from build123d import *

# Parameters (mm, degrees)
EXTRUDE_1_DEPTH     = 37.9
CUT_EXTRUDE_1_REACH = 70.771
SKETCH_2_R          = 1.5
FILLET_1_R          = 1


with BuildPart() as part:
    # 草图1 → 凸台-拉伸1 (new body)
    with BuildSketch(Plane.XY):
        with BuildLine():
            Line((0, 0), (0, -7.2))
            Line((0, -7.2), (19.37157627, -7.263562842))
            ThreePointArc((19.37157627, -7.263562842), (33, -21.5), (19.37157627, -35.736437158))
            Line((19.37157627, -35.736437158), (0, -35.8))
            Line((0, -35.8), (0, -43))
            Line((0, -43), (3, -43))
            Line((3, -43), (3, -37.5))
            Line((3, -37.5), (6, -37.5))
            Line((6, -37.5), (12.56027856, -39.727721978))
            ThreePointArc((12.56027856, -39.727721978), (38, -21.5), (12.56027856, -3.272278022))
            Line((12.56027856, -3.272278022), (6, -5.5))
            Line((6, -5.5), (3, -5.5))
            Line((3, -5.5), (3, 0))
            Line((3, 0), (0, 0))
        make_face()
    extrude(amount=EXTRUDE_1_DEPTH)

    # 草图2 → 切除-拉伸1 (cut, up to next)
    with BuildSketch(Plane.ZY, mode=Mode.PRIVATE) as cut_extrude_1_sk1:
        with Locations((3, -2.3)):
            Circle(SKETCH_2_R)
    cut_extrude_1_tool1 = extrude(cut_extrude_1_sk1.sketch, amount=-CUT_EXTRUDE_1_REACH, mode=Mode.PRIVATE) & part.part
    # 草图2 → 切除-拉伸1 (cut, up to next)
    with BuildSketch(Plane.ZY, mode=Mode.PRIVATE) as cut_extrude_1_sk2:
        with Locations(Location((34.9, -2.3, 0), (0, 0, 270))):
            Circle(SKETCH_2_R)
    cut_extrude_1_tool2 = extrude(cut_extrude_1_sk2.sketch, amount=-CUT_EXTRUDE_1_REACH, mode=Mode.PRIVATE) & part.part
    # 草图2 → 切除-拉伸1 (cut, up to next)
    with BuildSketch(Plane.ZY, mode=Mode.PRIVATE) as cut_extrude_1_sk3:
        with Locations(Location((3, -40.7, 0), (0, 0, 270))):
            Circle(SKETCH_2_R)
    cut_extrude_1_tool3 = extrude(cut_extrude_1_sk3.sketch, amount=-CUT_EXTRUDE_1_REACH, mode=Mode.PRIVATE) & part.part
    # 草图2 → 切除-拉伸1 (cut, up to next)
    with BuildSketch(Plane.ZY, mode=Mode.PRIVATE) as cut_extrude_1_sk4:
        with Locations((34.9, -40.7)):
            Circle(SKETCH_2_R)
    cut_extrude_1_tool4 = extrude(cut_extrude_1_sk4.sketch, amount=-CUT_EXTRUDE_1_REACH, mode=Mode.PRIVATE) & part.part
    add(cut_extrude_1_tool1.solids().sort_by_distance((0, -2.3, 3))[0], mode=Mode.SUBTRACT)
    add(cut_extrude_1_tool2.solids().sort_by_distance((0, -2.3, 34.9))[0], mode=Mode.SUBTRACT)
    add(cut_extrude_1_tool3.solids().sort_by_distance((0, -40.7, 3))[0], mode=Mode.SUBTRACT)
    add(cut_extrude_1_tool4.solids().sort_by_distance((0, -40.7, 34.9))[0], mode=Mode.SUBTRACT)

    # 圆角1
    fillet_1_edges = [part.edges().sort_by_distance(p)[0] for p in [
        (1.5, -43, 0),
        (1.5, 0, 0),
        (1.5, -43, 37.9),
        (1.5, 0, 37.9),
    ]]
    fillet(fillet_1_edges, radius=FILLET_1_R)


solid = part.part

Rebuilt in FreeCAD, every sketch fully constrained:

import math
import FreeCAD as App
import Part
import Sketcher

V = App.Vector


def edges_at(feature, points):
    """Names of the edges that pass closest to the given points."""
    edges = feature.Shape.Edges
    near = lambda p: min(range(len(edges)), key=lambda i: edges[i].distToShape(Part.Vertex(*p))[0])
    return sorted({f"Edge{near(p) + 1}" for p in points})

doc = App.newDocument("Part")
params = doc.addObject("Spreadsheet::Sheet", "Params")
for row, (alias, value) in enumerate([
    ("sketch1_width", "3 mm"),
    ("sketch1_radius", "14.25 mm"),
    ("sketch1_radius2", "19.25 mm"),
    ("sketch1_height", "7.2 mm"),
    ("sketch1_height2", "5.5 mm"),
    ("pad1_length", "37.9 mm"),
    ("sketch2_diameter", "3 mm"),
    ("sketch3_diameter", "3 mm"),
    ("sketch4_diameter", "3 mm"),
    ("sketch5_diameter", "3 mm"),
    ("fillet_radius", "1 mm"),
], start=1):
    params.set(f"A{row}", alias)
    params.set(f"B{row}", "=" + value)
    params.setAlias(f"B{row}", alias)

body = doc.addObject("PartDesign::Body", "Body")

# Sketch on XY plane
sketch1 = body.newObject("Sketcher::SketchObject", "Sketch")
sketch1.AttachmentSupport = (doc.getObject("XY_Plane"), [""])
sketch1.MapMode = "FlatFace"
sketch1.addGeometry(Part.LineSegment(V(0, 0, 0), V(0, -7.2, 0)), False)
sketch1.addGeometry(Part.LineSegment(V(0, -7.2, 0), V(19.4, -7.3, 0)), False)
sketch1.addGeometry(Part.ArcOfCircle(Part.Circle(V(18.8, -21.5, 0), V(0, 0, 1), 14.2), math.radians(-87), math.radians(87)), False)
sketch1.addGeometry(Part.LineSegment(V(19.4, -35.7, 0), V(0, -35.8, 0)), False)
sketch1.addGeometry(Part.LineSegment(V(0, -35.8, 0), V(0, -43, 0)), False)
sketch1.addGeometry(Part.LineSegment(V(0, -43, 0), V(3, -43, 0)), False)
sketch1.addGeometry(Part.LineSegment(V(3, -43, 0), V(3, -37.5, 0)), False)
sketch1.addGeometry(Part.LineSegment(V(3, -37.5, 0), V(6, -37.5, 0)), False)
sketch1.addGeometry(Part.LineSegment(V(6, -37.5, 0), V(12.6, -39.7, 0)), False)
sketch1.addGeometry(Part.ArcOfCircle(Part.Circle(V(18.8, -21.5, 0), V(0, 0, 1), 19.2), math.radians(-109), math.radians(109)), False)
sketch1.addGeometry(Part.LineSegment(V(12.6, -3.3, 0), V(6, -5.5, 0)), False)
sketch1.addGeometry(Part.LineSegment(V(6, -5.5, 0), V(3, -5.5, 0)), False)
sketch1.addGeometry(Part.LineSegment(V(3, -5.5, 0), V(3, 0, 0)), False)
sketch1.addGeometry(Part.LineSegment(V(3, 0, 0), V(0, 0, 0)), False)
sketch1.addConstraint(Sketcher.Constraint("Coincident", 0, 2, 1, 1))
sketch1.addConstraint(Sketcher.Constraint("Coincident", 1, 2, 2, 2))
sketch1.addConstraint(Sketcher.Constraint("Coincident", 2, 1, 3, 1))
sketch1.addConstraint(Sketcher.Constraint("Coincident", 3, 2, 4, 1))
sketch1.addConstraint(Sketcher.Constraint("Coincident", 4, 2, 5, 1))
sketch1.addConstraint(Sketcher.Constraint("Coincident", 5, 2, 6, 1))
sketch1.addConstraint(Sketcher.Constraint("Coincident", 6, 2, 7, 1))
sketch1.addConstraint(Sketcher.Constraint("Coincident", 7, 2, 8, 1))
sketch1.addConstraint(Sketcher.Constraint("Tangent", 8, 2, 9, 1))
sketch1.addConstraint(Sketcher.Constraint("Tangent", 9, 2, 10, 1))
sketch1.addConstraint(Sketcher.Constraint("Coincident", 10, 2, 11, 1))
sketch1.addConstraint(Sketcher.Constraint("Coincident", 11, 2, 12, 1))
sketch1.addConstraint(Sketcher.Constraint("Coincident", 12, 2, 13, 1))
sketch1.addConstraint(Sketcher.Constraint("Coincident", 13, 2, 0, 1))
sketch1.addConstraint(Sketcher.Constraint("Vertical", 0))
sketch1.addConstraint(Sketcher.Constraint("Vertical", 4))
sketch1.addConstraint(Sketcher.Constraint("Horizontal", 5))
sketch1.addConstraint(Sketcher.Constraint("Vertical", 6))
sketch1.addConstraint(Sketcher.Constraint("Horizontal", 7))
sketch1.addConstraint(Sketcher.Constraint("Horizontal", 11))
sketch1.addConstraint(Sketcher.Constraint("Vertical", 12))
sketch1.addConstraint(Sketcher.Constraint("Horizontal", 13))
sketch1.addConstraint(Sketcher.Constraint("Coincident", 13, 2, -1, 1))
sketch1.addConstraint(Sketcher.Constraint("Coincident", 9, 3, 2, 3))
sketch1.addConstraint(Sketcher.Constraint("PointOnObject", 3, 2, -2))
sketch1.addConstraint(Sketcher.Constraint("Vertical", 1, 2, 2, 1))
sketch1.addConstraint(Sketcher.Constraint("Vertical", 8, 2, 9, 2))
sketch1.addConstraint(Sketcher.Constraint("Vertical", 7, 2, 10, 2))
sketch1.addConstraint(Sketcher.Constraint("Vertical", 6, 2, 11, 2))
sketch1.addConstraint(Sketcher.Constraint("Equal", 5, 7))
sketch1.addConstraint(Sketcher.Constraint("Equal", 0, 4))
sketch1.addConstraint(Sketcher.Constraint("Equal", 6, 12))
sketch1.addConstraint(Sketcher.Constraint("DistanceX", 5, 1, 5, 2, 3.0))
sketch1.addConstraint(Sketcher.Constraint("Radius", 2, 14.25))
sketch1.addConstraint(Sketcher.Constraint("Radius", 9, 19.25))
sketch1.addConstraint(Sketcher.Constraint("DistanceY", 0, 2, 0, 1, 7.2))
sketch1.addConstraint(Sketcher.Constraint("DistanceY", 6, 1, 6, 2, 5.5))
sketch1.addConstraint(Sketcher.Constraint("DistanceY", 4, 2, -1, 1, 43.0))
sketch1.addConstraint(Sketcher.Constraint("DistanceX", -1, 1, 2, 3, 18.75))
sketch1.addConstraint(Sketcher.Constraint("Distance", 1, 19.371681))
sketch1.setExpression("Constraints[32]", "Params.sketch1_width")
sketch1.setExpression("Constraints[33]", "Params.sketch1_radius")
sketch1.setExpression("Constraints[34]", "Params.sketch1_radius2")
sketch1.setExpression("Constraints[35]", "Params.sketch1_height")
sketch1.setExpression("Constraints[36]", "Params.sketch1_height2")
pad1 = body.newObject("PartDesign::Pad", "Pad")
pad1.Profile = sketch1
pad1.setExpression("Length", "Params.pad1_length")

# Sketch on YZ plane
sketch2 = body.newObject("Sketcher::SketchObject", "Sketch001")
sketch2.AttachmentSupport = (doc.getObject("YZ_Plane"), [""])
sketch2.MapMode = "FlatFace"
sketch2.addGeometry(Part.Circle(V(-2.3, 3, 0), V(0, 0, 1), 1.5), False)
sketch2.addConstraint(Sketcher.Constraint("Diameter", 0, 3.0))
sketch2.addConstraint(Sketcher.Constraint("DistanceY", -1, 1, 0, 3, 3.0))
sketch2.addConstraint(Sketcher.Constraint("DistanceX", 0, 3, -1, 1, 2.3))
sketch2.setExpression("Constraints[0]", "Params.sketch2_diameter")
pocket1 = body.newObject("PartDesign::Pocket", "Pocket")
pocket1.Profile = sketch2
pocket1.Type = "UpToFirst"
pocket1.Reversed = True

# Sketch on YZ plane
sketch3 = body.newObject("Sketcher::SketchObject", "Sketch002")
sketch3.AttachmentSupport = (doc.getObject("YZ_Plane"), [""])
sketch3.MapMode = "FlatFace"
sketch3.addGeometry(Part.Circle(V(-2.3, 34.9, 0), V(0, 0, 1), 1.5), False)
sketch3.addConstraint(Sketcher.Constraint("Diameter", 0, 3.0))
sketch3.addConstraint(Sketcher.Constraint("DistanceX", 0, 3, -1, 1, 2.3))
sketch3.addConstraint(Sketcher.Constraint("DistanceY", -1, 1, 0, 3, 34.9))
sketch3.setExpression("Constraints[0]", "Params.sketch3_diameter")
pocket2 = body.newObject("PartDesign::Pocket", "Pocket001")
pocket2.Profile = sketch3
pocket2.Type = "UpToFirst"
pocket2.Reversed = True

# Sketch on YZ plane
sketch4 = body.newObject("Sketcher::SketchObject", "Sketch003")
sketch4.AttachmentSupport = (doc.getObject("YZ_Plane"), [""])
sketch4.MapMode = "FlatFace"
sketch4.addGeometry(Part.Circle(V(-40.7, 3, 0), V(0, 0, 1), 1.5), False)
sketch4.addConstraint(Sketcher.Constraint("Diameter", 0, 3.0))
sketch4.addConstraint(Sketcher.Constraint("DistanceY", -1, 1, 0, 3, 3.0))
sketch4.addConstraint(Sketcher.Constraint("DistanceX", 0, 3, -1, 1, 40.7))
sketch4.setExpression("Constraints[0]", "Params.sketch4_diameter")
pocket3 = body.newObject("PartDesign::Pocket", "Pocket002")
pocket3.Profile = sketch4
pocket3.Type = "UpToFirst"
pocket3.Reversed = True

# Sketch on YZ plane
sketch5 = body.newObject("Sketcher::SketchObject", "Sketch004")
sketch5.AttachmentSupport = (doc.getObject("YZ_Plane"), [""])
sketch5.MapMode = "FlatFace"
sketch5.addGeometry(Part.Circle(V(-40.7, 34.9, 0), V(0, 0, 1), 1.5), False)
sketch5.addConstraint(Sketcher.Constraint("Diameter", 0, 3.0))
sketch5.addConstraint(Sketcher.Constraint("DistanceX", 0, 3, -1, 1, 40.7))
sketch5.addConstraint(Sketcher.Constraint("DistanceY", -1, 1, 0, 3, 34.9))
sketch5.setExpression("Constraints[0]", "Params.sketch5_diameter")
pocket4 = body.newObject("PartDesign::Pocket", "Pocket003")
pocket4.Profile = sketch5
pocket4.Type = "UpToFirst"
pocket4.Reversed = True
doc.recompute()

fillet = body.newObject("PartDesign::Fillet", "Fillet")
fillet.Base = (pocket4, edges_at(pocket4, [
    (1.5, -43, 0),
    (1.5, 0, 0),
    (1.5, -43, 37.9),
    (1.5, 0, 37.9),
]))
fillet.setExpression("Radius", "Params.fillet_radius")

doc.recompute()
